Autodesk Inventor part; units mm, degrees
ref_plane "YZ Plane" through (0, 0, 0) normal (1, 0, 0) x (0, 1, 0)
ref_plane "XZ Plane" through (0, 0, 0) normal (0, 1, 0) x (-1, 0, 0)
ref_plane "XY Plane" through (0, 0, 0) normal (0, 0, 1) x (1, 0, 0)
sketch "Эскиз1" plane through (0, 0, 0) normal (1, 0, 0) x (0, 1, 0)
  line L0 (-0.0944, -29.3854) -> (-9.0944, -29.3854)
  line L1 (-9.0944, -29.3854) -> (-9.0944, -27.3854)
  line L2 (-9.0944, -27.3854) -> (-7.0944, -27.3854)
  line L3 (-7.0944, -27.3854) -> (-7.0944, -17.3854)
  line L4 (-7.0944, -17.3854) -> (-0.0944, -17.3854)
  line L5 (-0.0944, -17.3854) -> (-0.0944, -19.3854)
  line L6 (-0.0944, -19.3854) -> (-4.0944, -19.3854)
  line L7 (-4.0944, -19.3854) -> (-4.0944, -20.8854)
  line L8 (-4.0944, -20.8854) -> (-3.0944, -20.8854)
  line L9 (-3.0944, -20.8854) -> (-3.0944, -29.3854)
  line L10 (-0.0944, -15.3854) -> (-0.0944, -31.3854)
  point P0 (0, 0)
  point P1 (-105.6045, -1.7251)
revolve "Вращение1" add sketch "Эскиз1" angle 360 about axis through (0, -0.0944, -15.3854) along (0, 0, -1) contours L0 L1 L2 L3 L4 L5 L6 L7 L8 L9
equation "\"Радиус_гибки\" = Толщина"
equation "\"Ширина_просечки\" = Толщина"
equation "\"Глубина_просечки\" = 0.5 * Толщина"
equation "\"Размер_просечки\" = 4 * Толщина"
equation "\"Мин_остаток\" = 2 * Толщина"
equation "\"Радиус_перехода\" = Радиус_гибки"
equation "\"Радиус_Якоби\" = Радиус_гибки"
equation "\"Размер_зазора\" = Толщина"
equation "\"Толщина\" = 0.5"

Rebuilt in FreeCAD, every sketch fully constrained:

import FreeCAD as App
import Part
import Sketcher

V = App.Vector


def add_polygon(sketch, points):
    """Adds a closed chain of lines whose ends are joined by coincident constraints."""
    first, n = sketch.GeometryCount, len(points)
    for a, b in zip(points, points[1:] + points[:1]):
        sketch.addGeometry(Part.LineSegment(App.Vector(*a, 0), App.Vector(*b, 0)), False)
    for i in range(n):
        sketch.addConstraint(Sketcher.Constraint("Coincident", first + i, 2, first + (i + 1) % n, 1))

doc = App.newDocument("Part")
body = doc.addObject("PartDesign::Body", "Body")

# Sketch on YZ plane
sketch1 = body.newObject("Sketcher::SketchObject", "Sketch")
sketch1.AttachmentSupport = (doc.getObject("YZ_Plane"), [""])
sketch1.MapMode = "FlatFace"
add_polygon(sketch1, [(-9.1, -29.4), (-3.1, -29.4), (-3.1, -20.9), (-4.1, -20.9), (-4.1, -19.4), (-0.1, -19.4), (-0.1, -17.4), (-7.1, -17.4), (-7.1, -27.4), (-9.1, -27.4)])  # lines 0-9
sketch1.addGeometry(Part.LineSegment(V(-0.1, -17.4, 0), V(-0.1, -29.4, 0)), True)  # axis
sketch1.addConstraint([
    Sketcher.Constraint("Horizontal", 0),
    Sketcher.Constraint("Vertical", 1),
    Sketcher.Constraint("Horizontal", 2),
    Sketcher.Constraint("Vertical", 3),
    Sketcher.Constraint("Horizontal", 4),
    Sketcher.Constraint("Vertical", 5),
    Sketcher.Constraint("Horizontal", 6),
    Sketcher.Constraint("Vertical", 7),
    Sketcher.Constraint("Horizontal", 8),
    Sketcher.Constraint("Vertical", 9),
    Sketcher.Constraint("Vertical", 10),
    Sketcher.Constraint("Coincident", 10, 1, 5, 2),
    Sketcher.Constraint("Horizontal", 9, 2, 10, 2),
    Sketcher.Constraint("Equal", 8, 5),
    Sketcher.Constraint("Equal", 5, 9),
    Sketcher.Constraint("DistanceX", 0, 1, 0, 2, 6.0),
    Sketcher.Constraint("DistanceX", 2, 2, 2, 1, 1.0),
    Sketcher.Constraint("DistanceX", 4, 1, 4, 2, 4.0),
    Sketcher.Constraint("DistanceX", 6, 2, 6, 1, 7.0),
    Sketcher.Constraint("DistanceY", 7, 2, 7, 1, 10.0),
    Sketcher.Constraint("DistanceY", 1, 1, 1, 2, 8.5),
    Sketcher.Constraint("DistanceX", 0, 2, -1, 1, 3.0944),
    Sketcher.Constraint("DistanceY", 0, 2, -1, 1, 29.3854),
])
revolution = body.newObject("PartDesign::Revolution", "Revolution")
revolution.Profile = sketch1
revolution.ReferenceAxis = (sketch1, ["Axis0"])
revolution.Angle = 360

doc.recompute()
